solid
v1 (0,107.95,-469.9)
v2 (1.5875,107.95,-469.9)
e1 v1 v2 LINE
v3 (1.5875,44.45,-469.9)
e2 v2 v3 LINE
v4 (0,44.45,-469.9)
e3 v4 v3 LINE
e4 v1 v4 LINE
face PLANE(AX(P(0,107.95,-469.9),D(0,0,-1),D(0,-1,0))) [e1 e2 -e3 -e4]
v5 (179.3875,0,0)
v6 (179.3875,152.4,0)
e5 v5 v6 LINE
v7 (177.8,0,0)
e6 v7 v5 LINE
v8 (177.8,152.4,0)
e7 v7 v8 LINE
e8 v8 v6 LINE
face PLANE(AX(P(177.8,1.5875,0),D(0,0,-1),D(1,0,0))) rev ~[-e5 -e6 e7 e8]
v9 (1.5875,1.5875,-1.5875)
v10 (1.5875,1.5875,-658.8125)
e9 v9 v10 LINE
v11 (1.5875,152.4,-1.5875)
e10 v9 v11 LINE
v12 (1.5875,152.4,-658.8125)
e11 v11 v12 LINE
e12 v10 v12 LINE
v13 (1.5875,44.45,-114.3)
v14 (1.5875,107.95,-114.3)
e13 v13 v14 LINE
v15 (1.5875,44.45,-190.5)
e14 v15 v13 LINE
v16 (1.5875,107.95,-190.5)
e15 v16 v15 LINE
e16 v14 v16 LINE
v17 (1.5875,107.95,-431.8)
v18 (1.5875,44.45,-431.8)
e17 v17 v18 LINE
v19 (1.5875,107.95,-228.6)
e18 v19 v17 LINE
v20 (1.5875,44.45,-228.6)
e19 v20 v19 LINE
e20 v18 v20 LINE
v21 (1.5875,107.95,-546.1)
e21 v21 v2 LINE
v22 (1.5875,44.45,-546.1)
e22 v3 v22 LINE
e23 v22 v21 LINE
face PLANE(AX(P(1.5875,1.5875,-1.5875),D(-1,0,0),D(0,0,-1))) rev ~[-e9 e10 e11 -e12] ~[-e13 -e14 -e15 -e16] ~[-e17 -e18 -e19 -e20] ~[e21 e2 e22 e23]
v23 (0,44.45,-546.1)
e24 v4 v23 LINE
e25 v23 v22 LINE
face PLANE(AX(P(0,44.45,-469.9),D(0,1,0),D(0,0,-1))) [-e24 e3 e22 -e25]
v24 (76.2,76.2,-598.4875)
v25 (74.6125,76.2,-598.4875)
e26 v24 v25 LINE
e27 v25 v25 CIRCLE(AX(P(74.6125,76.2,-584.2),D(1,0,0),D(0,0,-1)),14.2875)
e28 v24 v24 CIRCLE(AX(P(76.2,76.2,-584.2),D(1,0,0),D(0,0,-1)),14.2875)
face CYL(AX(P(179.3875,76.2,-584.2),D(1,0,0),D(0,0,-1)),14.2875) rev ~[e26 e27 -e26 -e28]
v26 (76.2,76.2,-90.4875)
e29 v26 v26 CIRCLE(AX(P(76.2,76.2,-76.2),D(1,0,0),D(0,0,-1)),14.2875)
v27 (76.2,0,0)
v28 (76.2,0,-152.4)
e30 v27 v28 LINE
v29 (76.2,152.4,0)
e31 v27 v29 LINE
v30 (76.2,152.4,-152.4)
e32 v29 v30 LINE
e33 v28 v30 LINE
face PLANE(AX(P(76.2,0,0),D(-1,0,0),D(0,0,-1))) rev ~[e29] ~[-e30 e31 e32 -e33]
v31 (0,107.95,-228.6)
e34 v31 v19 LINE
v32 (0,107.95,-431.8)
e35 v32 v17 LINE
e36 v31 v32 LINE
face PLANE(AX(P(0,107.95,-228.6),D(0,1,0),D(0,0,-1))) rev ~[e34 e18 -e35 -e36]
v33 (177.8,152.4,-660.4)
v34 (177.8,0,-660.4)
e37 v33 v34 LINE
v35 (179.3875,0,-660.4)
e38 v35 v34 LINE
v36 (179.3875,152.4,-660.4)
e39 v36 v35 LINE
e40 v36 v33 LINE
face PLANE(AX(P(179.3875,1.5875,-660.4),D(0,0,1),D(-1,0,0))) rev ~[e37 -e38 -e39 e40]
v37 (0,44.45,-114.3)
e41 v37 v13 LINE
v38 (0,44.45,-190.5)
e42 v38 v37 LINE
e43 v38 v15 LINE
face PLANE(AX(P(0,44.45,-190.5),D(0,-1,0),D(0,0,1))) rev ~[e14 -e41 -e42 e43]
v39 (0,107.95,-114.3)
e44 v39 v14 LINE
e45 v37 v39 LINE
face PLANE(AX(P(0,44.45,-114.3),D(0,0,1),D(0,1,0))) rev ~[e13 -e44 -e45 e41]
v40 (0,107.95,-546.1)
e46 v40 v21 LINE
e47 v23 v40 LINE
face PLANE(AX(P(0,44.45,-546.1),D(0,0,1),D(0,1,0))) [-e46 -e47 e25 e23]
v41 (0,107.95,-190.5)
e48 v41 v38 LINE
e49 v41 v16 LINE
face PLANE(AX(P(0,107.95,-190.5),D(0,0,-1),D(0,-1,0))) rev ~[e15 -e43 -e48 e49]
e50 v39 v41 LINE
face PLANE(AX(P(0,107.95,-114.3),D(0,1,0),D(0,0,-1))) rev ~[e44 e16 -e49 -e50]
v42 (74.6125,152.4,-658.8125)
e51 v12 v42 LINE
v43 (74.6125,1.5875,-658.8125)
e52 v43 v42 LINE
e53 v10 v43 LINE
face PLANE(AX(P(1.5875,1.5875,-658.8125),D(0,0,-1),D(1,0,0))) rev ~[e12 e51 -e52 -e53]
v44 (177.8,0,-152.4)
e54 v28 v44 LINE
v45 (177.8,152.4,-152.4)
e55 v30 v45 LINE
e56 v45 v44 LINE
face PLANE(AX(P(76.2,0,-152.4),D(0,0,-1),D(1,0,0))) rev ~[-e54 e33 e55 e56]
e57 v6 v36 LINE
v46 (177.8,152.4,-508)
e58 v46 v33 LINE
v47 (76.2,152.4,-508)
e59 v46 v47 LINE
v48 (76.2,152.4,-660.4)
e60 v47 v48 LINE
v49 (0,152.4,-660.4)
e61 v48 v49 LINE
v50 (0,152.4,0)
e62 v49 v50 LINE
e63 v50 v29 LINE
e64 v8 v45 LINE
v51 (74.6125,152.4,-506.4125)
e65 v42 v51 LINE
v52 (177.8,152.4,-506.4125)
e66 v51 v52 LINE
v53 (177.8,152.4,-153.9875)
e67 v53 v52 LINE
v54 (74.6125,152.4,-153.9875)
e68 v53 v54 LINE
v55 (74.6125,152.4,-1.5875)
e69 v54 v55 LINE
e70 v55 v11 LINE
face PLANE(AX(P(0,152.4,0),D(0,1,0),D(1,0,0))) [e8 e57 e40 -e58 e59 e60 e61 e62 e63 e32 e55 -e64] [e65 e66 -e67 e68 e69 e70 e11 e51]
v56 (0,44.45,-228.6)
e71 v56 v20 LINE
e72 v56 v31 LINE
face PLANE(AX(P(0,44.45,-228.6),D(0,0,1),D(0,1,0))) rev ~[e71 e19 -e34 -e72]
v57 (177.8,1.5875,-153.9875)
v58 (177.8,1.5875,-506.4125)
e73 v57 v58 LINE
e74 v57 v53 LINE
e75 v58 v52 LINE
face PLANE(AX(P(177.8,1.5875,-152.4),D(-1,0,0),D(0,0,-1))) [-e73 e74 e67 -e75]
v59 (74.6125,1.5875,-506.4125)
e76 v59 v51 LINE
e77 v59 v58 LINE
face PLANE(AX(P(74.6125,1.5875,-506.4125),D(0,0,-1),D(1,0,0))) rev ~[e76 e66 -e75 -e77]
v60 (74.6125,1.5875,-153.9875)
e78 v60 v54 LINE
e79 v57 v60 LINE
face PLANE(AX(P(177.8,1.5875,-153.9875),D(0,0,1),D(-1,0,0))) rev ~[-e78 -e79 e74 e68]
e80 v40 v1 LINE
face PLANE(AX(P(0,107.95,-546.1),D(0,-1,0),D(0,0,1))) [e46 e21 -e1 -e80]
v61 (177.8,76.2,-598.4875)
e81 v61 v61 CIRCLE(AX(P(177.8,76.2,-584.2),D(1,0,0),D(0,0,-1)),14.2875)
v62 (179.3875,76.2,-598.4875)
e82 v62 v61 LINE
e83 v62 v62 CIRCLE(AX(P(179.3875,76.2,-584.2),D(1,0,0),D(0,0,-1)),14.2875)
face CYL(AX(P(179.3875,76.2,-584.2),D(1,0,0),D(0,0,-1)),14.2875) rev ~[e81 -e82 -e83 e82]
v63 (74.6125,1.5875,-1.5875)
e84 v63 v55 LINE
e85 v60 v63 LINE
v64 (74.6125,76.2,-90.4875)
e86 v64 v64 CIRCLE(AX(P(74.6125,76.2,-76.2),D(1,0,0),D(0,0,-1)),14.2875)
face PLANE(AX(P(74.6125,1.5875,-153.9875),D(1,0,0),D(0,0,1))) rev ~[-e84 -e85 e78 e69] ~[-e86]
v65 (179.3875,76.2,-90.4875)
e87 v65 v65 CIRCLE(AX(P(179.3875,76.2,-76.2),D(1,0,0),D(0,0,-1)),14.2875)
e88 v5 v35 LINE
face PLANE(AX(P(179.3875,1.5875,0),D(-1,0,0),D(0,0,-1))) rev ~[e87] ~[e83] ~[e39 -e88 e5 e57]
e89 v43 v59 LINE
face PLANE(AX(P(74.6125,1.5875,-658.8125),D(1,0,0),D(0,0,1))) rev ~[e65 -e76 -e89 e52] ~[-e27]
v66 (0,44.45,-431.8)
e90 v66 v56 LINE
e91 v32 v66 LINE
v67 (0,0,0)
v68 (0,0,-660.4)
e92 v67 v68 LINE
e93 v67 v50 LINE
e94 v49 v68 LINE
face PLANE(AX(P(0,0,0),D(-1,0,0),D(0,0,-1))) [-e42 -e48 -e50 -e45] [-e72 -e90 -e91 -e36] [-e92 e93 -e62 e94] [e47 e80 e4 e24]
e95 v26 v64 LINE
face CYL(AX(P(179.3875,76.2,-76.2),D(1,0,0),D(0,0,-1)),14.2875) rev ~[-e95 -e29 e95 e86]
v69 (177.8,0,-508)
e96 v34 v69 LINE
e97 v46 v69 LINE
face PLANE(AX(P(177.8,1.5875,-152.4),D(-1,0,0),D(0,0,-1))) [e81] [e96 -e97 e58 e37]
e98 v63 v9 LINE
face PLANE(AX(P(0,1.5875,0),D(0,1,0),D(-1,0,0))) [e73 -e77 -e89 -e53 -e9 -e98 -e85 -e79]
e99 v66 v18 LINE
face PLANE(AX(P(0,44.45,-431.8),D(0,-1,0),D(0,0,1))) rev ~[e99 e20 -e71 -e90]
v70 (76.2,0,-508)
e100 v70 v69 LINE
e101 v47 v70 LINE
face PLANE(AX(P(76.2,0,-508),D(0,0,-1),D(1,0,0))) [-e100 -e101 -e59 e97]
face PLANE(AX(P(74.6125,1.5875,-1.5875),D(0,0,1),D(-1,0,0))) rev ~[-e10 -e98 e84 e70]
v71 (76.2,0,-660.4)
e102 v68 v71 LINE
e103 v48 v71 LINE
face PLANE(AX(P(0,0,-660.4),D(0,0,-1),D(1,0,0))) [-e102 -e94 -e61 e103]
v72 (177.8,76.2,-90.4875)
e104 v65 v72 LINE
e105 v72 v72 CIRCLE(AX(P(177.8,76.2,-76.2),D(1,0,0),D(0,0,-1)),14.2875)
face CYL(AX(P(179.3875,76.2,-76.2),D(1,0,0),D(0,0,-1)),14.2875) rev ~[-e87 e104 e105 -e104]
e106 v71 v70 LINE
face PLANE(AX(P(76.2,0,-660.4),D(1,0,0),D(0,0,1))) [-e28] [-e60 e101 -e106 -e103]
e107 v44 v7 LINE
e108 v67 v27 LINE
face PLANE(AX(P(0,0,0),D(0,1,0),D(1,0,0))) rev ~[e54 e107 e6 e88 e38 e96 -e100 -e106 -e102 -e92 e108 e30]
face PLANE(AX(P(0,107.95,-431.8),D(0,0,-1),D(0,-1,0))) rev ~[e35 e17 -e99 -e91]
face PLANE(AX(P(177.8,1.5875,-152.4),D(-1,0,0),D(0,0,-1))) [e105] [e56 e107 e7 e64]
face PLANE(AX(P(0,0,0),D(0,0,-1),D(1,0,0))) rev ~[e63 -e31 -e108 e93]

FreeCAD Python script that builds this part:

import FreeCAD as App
import Part
import Sketcher

V = App.Vector
Q = App.Units.Quantity


def add_polygon(sketch, points):
    """Adds a closed chain of lines whose ends are joined by coincident constraints."""
    first, n = sketch.GeometryCount, len(points)
    for a, b in zip(points, points[1:] + points[:1]):
        sketch.addGeometry(Part.LineSegment(App.Vector(*a, 0), App.Vector(*b, 0)), False)
    for i in range(n):
        sketch.addConstraint(Sketcher.Constraint("Coincident", first + i, 2, first + (i + 1) % n, 1))

doc = App.newDocument("Part")
params = doc.addObject("Spreadsheet::Sheet", "Params")
for row, (alias, value) in enumerate([
    ("sketch1_width", "4 in"),
    ("sketch1_height", "26 in"),
    ("sketch1_height2", "6 in"),
    ("pad1_length", "0.0625 in"),
    ("sketch2_width", "3 in"),
    ("sketch2_width2", "4 in"),
    ("sketch2_height", "26 in"),
    ("sketch2_height2", "6 in"),
    ("sketch2_height3", "0.0625 in"),
    ("pad2_length", "5.9375 in"),
    ("sketch3_width", "0.0625 in"),
    ("sketch3_height", "26 in"),
    ("pad3_length", "5.9375 in"),
    ("pad3_length2", "0.0625 in"),
    ("sketch4_height", "8 in"),
    ("sketch4_height2", "3 in"),
    ("sketch4_width", "2.5 in"),
    ("pocket1_length", "0.0625 in"),
    ("sketch5_diameter", "1.125 in"),
    ("pocket2_length", "4.125 in"),
], start=1):
    params.set(f"A{row}", alias)
    params.set(f"B{row}", "=" + value)
    params.setAlias(f"B{row}", alias)

body = doc.addObject("PartDesign::Body", "Body")

# Sketch on XZ plane
sketch1 = body.newObject("Sketcher::SketchObject", "Sketch")
sketch1.AttachmentSupport = (doc.getObject("XZ_Plane"), [""])
sketch1.MapMode = "FlatFace"
add_polygon(sketch1, [(0, -660), (0, 0), (76, 0), (76, -152), (178, -152), (178, -508), (76, -508), (76, -660)])  # lines 0-7
sketch1.addConstraint([
    Sketcher.Constraint("Vertical", 0),
    Sketcher.Constraint("Horizontal", 1),
    Sketcher.Constraint("Vertical", 2),
    Sketcher.Constraint("Horizontal", 3),
    Sketcher.Constraint("Vertical", 4),
    Sketcher.Constraint("Horizontal", 5),
    Sketcher.Constraint("Vertical", 6),
    Sketcher.Constraint("Horizontal", 7),
    Sketcher.Constraint("Coincident", 0, 2, -1, 1),
    Sketcher.Constraint("Vertical", 2, 2, 5, 2),
    Sketcher.Constraint("Equal", 2, 6),
    Sketcher.Constraint("DistanceX", 3, 1, 3, 2, Q("4 in")),
    Sketcher.Constraint("DistanceY", 0, 1, 0, 2, Q("26 in")),
    Sketcher.Constraint("DistanceY", 2, 2, 2, 1, Q("6 in")),
    Sketcher.Constraint("DistanceX", -1, 1, 3, 2, Q("7 in")),
])
sketch1.setExpression("Constraints[19]", "Params.sketch1_width")
sketch1.setExpression("Constraints[20]", "Params.sketch1_height")
sketch1.setExpression("Constraints[21]", "Params.sketch1_height2")
pad1 = body.newObject("PartDesign::Pad", "Pad")
pad1.Profile = sketch1
pad1.setExpression("Length", "Params.pad1_length")
pad1.Reversed = True

# Sketch on XZ plane
sketch2 = body.newObject("Sketcher::SketchObject", "Sketch001")
sketch2.AttachmentSupport = (doc.getObject("XZ_Plane"), [""])
sketch2.MapMode = "FlatFace"
sketch2.AttachmentOffset = App.Placement(V(0, 0, -0.0625 * 25.4), App.Rotation())
add_polygon(sketch2, [(0, -660.4), (0, 0), (76.2, 0), (76.2, -152.4), (177.8, -152.4), (177.8, -154), (74.6, -154), (74.6, -1.6), (1.6, -1.6), (1.6, -658.8), (74.6, -658.8), (74.6, -506.4), (177.8, -506.4), (177.8, -508), (76.2, -508), (76.2, -660.4)])  # lines 0-15
sketch2.addConstraint([
    Sketcher.Constraint("Vertical", 0),
    Sketcher.Constraint("Horizontal", 1),
    Sketcher.Constraint("Vertical", 2),
    Sketcher.Constraint("Horizontal", 3),
    Sketcher.Constraint("Vertical", 4),
    Sketcher.Constraint("Horizontal", 5),
    Sketcher.Constraint("Vertical", 6),
    Sketcher.Constraint("Horizontal", 7),
    Sketcher.Constraint("Vertical", 8),
    Sketcher.Constraint("Horizontal", 9),
    Sketcher.Constraint("Vertical", 10),
    Sketcher.Constraint("Horizontal", 11),
    Sketcher.Constraint("Vertical", 12),
    Sketcher.Constraint("Horizontal", 13),
    Sketcher.Constraint("Vertical", 14),
    Sketcher.Constraint("Horizontal", 15),
    Sketcher.Constraint("Coincident", 0, 2, -1, 1),
    Sketcher.Constraint("Vertical", 6, 2, 9, 2),
    Sketcher.Constraint("Vertical", 4, 2, 11, 2),
    Sketcher.Constraint("Vertical", 2, 2, 13, 2),
    Sketcher.Constraint("Equal", 2, 6),
    Sketcher.Constraint("Equal", 6, 10),
    Sketcher.Constraint("Equal", 4, 12),
    Sketcher.Constraint("Equal", 10, 14),
    Sketcher.Constraint("DistanceX", 1, 1, 1, 2, Q("3 in")),
    Sketcher.Constraint("DistanceX", 3, 1, 3, 2, Q("4 in")),
    Sketcher.Constraint("DistanceY", 0, 1, 0, 2, Q("26 in")),
    Sketcher.Constraint("DistanceY", 2, 2, 2, 1, Q("6 in")),
    Sketcher.Constraint("DistanceY", 4, 2, 4, 1, Q("0.0625 in")),
    Sketcher.Constraint("DistanceX", -1, 1, 7, 2, Q("0.0625 in")),
    Sketcher.Constraint("DistanceX", 5, 2, 2, 2, Q("0.0625 in")),
])
sketch2.setExpression("Constraints[40]", "Params.sketch2_width")
sketch2.setExpression("Constraints[41]", "Params.sketch2_width2")
sketch2.setExpression("Constraints[42]", "Params.sketch2_height")
sketch2.setExpression("Constraints[43]", "Params.sketch2_height2")
sketch2.setExpression("Constraints[44]", "Params.sketch2_height3")
pad2 = body.newObject("PartDesign::Pad", "Pad001")
pad2.Profile = sketch2
pad2.setExpression("Length", "Params.pad2_length")
pad2.Reversed = True

# Sketch on XZ plane
sketch3 = body.newObject("Sketcher::SketchObject", "Sketch002")
sketch3.AttachmentSupport = (doc.getObject("XZ_Plane"), [""])
sketch3.MapMode = "FlatFace"
sketch3.AttachmentOffset = App.Placement(V(0, 0, -0.0625 * 25.4), App.Rotation())
add_polygon(sketch3, [(177.8, -660.4), (177.8, 0), (179.4, 0), (179.4, -660.4)])  # lines 0-3
sketch3.addConstraint([
    Sketcher.Constraint("Vertical", 0),
    Sketcher.Constraint("Horizontal", 1),
    Sketcher.Constraint("Vertical", 2),
    Sketcher.Constraint("Horizontal", 3),
    Sketcher.Constraint("PointOnObject", 0, 2, -1),
    Sketcher.Constraint("DistanceX", 1, 1, 1, 2, Q("0.0625 in")),
    Sketcher.Constraint("DistanceY", 0, 1, 0, 2, Q("26 in")),
    Sketcher.Constraint("DistanceX", -1, 1, 0, 2, Q("7 in")),
])
sketch3.setExpression("Constraints[9]", "Params.sketch3_width")
sketch3.setExpression("Constraints[10]", "Params.sketch3_height")
pad3 = body.newObject("PartDesign::Pad", "Pad002")
pad3.Profile = sketch3
pad3.Type = "TwoLengths"
pad3.setExpression("Length", "Params.pad3_length")
pad3.setExpression("Length2", "Params.pad3_length2")
pad3.Reversed = True

# Sketch on YZ plane
sketch4 = body.newObject("Sketcher::SketchObject", "Sketch003")
sketch4.AttachmentSupport = (doc.getObject("YZ_Plane"), [""])
sketch4.MapMode = "FlatFace"
add_polygon(sketch4, [(108, -432), (44, -432), (44, -229), (108, -229)])  # lines 0-3
add_polygon(sketch4, [(44, -546), (44, -470), (108, -470), (108, -546)])  # lines 4-7
add_polygon(sketch4, [(108, -190), (44, -190), (44, -114), (108, -114)])  # lines 8-11
sketch4.addConstraint([
    Sketcher.Constraint("Horizontal", 0),
    Sketcher.Constraint("Vertical", 1),
    Sketcher.Constraint("Horizontal", 2),
    Sketcher.Constraint("Vertical", 3),
    Sketcher.Constraint("Vertical", 4),
    Sketcher.Constraint("Horizontal", 5),
    Sketcher.Constraint("Vertical", 6),
    Sketcher.Constraint("Horizontal", 7),
    Sketcher.Constraint("Horizontal", 8),
    Sketcher.Constraint("Vertical", 9),
    Sketcher.Constraint("Horizontal", 10),
    Sketcher.Constraint("Vertical", 11),
    Sketcher.Constraint("Vertical", 1, 2, 4, 2),
    Sketcher.Constraint("Vertical", 3, 2, 5, 2),
    Sketcher.Constraint("Vertical", 7, 2, 8, 2),
    Sketcher.Constraint("Vertical", 6, 2, 10, 2),
    Sketcher.Constraint("Equal", 6, 9),
    Sketcher.Constraint("DistanceY", 1, 1, 1, 2, Q("8 in")),
    Sketcher.Constraint("DistanceY", 4, 1, 4, 2, Q("3 in")),
    Sketcher.Constraint("DistanceX", 0, 2, 0, 1, Q("2.5 in")),
    Sketcher.Constraint("DistanceY", 4, 2, 0, 2, Q("1.5 in")),
    Sketcher.Constraint("DistanceY", 1, 2, 8, 2, Q("1.5 in")),
    Sketcher.Constraint("DistanceY", 0, 2, -1, 1, Q("17 in")),
    Sketcher.Constraint("DistanceX", -1, 1, 0, 2, Q("1.75 in")),
])
sketch4.setExpression("Constraints[29]", "Params.sketch4_height")
sketch4.setExpression("Constraints[30]", "Params.sketch4_height2")
sketch4.setExpression("Constraints[31]", "Params.sketch4_width")
pocket1 = body.newObject("PartDesign::Pocket", "Pocket")
pocket1.Profile = sketch4
pocket1.setExpression("Length", "Params.pocket1_length")
pocket1.Reversed = True

# Sketch on YZ plane
sketch5 = body.newObject("Sketcher::SketchObject", "Sketch004")
sketch5.AttachmentSupport = (doc.getObject("YZ_Plane"), [""])
sketch5.MapMode = "FlatFace"
sketch5.AttachmentOffset = App.Placement(V(0, 0, 7.0625 * 25.4), App.Rotation())
sketch5.addGeometry([
    Part.Circle(V(76, -76, 0), V(0, 0, 1), 14),
    Part.Circle(V(76, -584, 0), V(0, 0, 1), 14),
], False)
sketch5.addConstraint([
    Sketcher.Constraint("Equal", 0, 1),
    Sketcher.Constraint("Vertical", 0, 3, 1, 3),
    Sketcher.Constraint("Diameter", 0, Q("1.125 in")),
    Sketcher.Constraint("DistanceX", -1, 1, 0, 3, Q("3 in")),
    Sketcher.Constraint("DistanceY", 0, 3, -1, 1, Q("3 in")),
    Sketcher.Constraint("DistanceY", 1, 3, -1, 1, Q("23 in")),
])
sketch5.setExpression("Constraints[2]", "Params.sketch5_diameter")
pocket2 = body.newObject("PartDesign::Pocket", "Pocket001")
pocket2.Profile = sketch5
pocket2.setExpression("Length", "Params.pocket2_length")

doc.recompute()
